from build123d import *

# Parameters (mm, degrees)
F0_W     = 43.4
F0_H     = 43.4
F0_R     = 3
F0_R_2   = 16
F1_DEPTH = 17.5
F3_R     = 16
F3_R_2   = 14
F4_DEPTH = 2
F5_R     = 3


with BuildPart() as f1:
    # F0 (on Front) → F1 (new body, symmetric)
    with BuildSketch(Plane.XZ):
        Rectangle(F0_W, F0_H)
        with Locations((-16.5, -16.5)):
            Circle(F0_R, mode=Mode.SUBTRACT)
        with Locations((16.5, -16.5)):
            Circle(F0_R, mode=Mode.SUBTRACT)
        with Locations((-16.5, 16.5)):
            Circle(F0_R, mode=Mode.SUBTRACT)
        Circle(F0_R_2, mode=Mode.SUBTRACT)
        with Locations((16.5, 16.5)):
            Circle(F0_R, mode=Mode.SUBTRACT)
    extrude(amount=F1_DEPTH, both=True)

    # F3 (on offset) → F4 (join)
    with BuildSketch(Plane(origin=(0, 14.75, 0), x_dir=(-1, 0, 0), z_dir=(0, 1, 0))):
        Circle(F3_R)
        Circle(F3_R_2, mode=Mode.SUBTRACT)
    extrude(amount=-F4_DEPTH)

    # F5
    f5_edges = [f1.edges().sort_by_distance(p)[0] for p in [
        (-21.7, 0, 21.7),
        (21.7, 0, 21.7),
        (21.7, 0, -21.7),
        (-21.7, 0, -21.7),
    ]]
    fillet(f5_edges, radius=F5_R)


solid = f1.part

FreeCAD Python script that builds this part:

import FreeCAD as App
import Part
import Sketcher
from FreeCAD import Vector
Q = App.Units.Quantity


def edges_at(feature, points):
    """Names of the edges that pass closest to the given points."""
    edges = feature.Shape.Edges
    near = lambda p: min(range(len(edges)), key=lambda i: edges[i].distToShape(Part.Vertex(*p))[0])
    return sorted({f"Edge{near(p) + 1}" for p in points})

doc = App.newDocument("Part")
body = doc.addObject("PartDesign::Body", "Body")

sketch1 = body.newObject("Sketcher::SketchObject", "Sketch")
sketch1.AttachmentSupport = (doc.getObject("XZ_Plane"), [""])
sketch1.MapMode = "FlatFace"
sketch1.addGeometry(Part.LineSegment(Vector(-21.7, 21.7, 0), Vector(-21.7, -21.7, 0)), False)
sketch1.addGeometry(Part.LineSegment(Vector(-21.7, -21.7, 0), Vector(21.7, -21.7, 0)), False)
sketch1.addGeometry(Part.LineSegment(Vector(21.7, -21.7, 0), Vector(21.7, 21.7, 0)), False)
sketch1.addGeometry(Part.LineSegment(Vector(21.7, 21.7, 0), Vector(-21.7, 21.7, 0)), False)
sketch1.addGeometry(Part.Circle(Vector(-16.5, -16.5, 0), Vector(0, 0, 1), 3), False)
sketch1.addGeometry(Part.Circle(Vector(16.5, -16.5, 0), Vector(0, 0, 1), 3), False)
sketch1.addGeometry(Part.Circle(Vector(-16.5, 16.5, 0), Vector(0, 0, 1), 3), False)
sketch1.addGeometry(Part.Circle(Vector(0, 0, 0), Vector(0, 0, 1), 16), False)
sketch1.addGeometry(Part.Circle(Vector(16.5, 16.5, 0), Vector(0, 0, 1), 3), False)
sketch1.addConstraint(Sketcher.Constraint("Coincident", 0, 2, 1, 1))
sketch1.addConstraint(Sketcher.Constraint("Coincident", 1, 2, 2, 1))
sketch1.addConstraint(Sketcher.Constraint("Coincident", 2, 2, 3, 1))
sketch1.addConstraint(Sketcher.Constraint("Coincident", 3, 2, 0, 1))
sketch1.addConstraint(Sketcher.Constraint("Vertical", 0))
sketch1.addConstraint(Sketcher.Constraint("Horizontal", 1))
sketch1.addConstraint(Sketcher.Constraint("Vertical", 2))
sketch1.addConstraint(Sketcher.Constraint("Horizontal", 3))
sketch1.addConstraint(Sketcher.Constraint("Coincident", 7, 3, -1, 1))
sketch1.addConstraint(Sketcher.Constraint("Equal", 4, 5))
sketch1.addConstraint(Sketcher.Constraint("Equal", 5, 6))
sketch1.addConstraint(Sketcher.Constraint("Equal", 6, 8))
sketch1.addConstraint(Sketcher.Constraint("Symmetric", 5, 3, 6, 3, -1, 1))
sketch1.addConstraint(Sketcher.Constraint("Symmetric", 4, 3, 8, 3, -1, 1))
sketch1.addConstraint(Sketcher.Constraint("Symmetric", 0, 2, 2, 2, -1, 1))
sketch1.addConstraint(Sketcher.Constraint("Symmetric", 4, 3, 5, 3, -2))
sketch1.addConstraint(Sketcher.Constraint("Equal", 3, 0))
sketch1.addConstraint(Sketcher.Constraint("Diameter", 4, Q("6 mm")))
sketch1.addConstraint(Sketcher.Constraint("Diameter", 7, Q("32 mm")))
sketch1.addConstraint(Sketcher.Constraint("DistanceX", 1, 1, 1, 2, Q("43.4 mm")))
sketch1.addConstraint(Sketcher.Constraint("DistanceX", 4, 3, 5, 3, Q("33 mm")))
sketch1.addConstraint(Sketcher.Constraint("DistanceY", 4, 3, 6, 3, Q("33 mm")))
pad1 = body.newObject("PartDesign::Pad", "Pad")
pad1.Profile = sketch1
pad1.Length = 35
pad1.Midplane = True

sketch2 = body.newObject("Sketcher::SketchObject", "Sketch001")
sketch2.AttachmentSupport = (doc.getObject("XZ_Plane"), [""])
sketch2.MapMode = "FlatFace"
sketch2.AttachmentOffset = App.Placement(Vector(0, 0, -14.75), App.Rotation())
sketch2.addGeometry(Part.Circle(Vector(0, 0, 0), Vector(0, 0, 1), 16), False)
sketch2.addGeometry(Part.Circle(Vector(0, 0, 0), Vector(0, 0, 1), 14), False)
sketch2.addConstraint(Sketcher.Constraint("Coincident", 0, 3, -1, 1))
sketch2.addConstraint(Sketcher.Constraint("Coincident", 1, 3, -1, 1))
sketch2.addConstraint(Sketcher.Constraint("Diameter", 0, Q("32 mm")))
sketch2.addConstraint(Sketcher.Constraint("Diameter", 1, Q("28 mm")))
pad2 = body.newObject("PartDesign::Pad", "Pad001")
pad2.Profile = sketch2
pad2.Length = 2
doc.recompute()

fillet = body.newObject("PartDesign::Fillet", "Fillet")
fillet.Base = (pad2, edges_at(pad2, [
    (-21.7, 0, 21.7),
    (21.7, 0, 21.7),
    (21.7, 0, -21.7),
    (-21.7, 0, -21.7),
]))
fillet.Radius = 3

doc.recompute()
